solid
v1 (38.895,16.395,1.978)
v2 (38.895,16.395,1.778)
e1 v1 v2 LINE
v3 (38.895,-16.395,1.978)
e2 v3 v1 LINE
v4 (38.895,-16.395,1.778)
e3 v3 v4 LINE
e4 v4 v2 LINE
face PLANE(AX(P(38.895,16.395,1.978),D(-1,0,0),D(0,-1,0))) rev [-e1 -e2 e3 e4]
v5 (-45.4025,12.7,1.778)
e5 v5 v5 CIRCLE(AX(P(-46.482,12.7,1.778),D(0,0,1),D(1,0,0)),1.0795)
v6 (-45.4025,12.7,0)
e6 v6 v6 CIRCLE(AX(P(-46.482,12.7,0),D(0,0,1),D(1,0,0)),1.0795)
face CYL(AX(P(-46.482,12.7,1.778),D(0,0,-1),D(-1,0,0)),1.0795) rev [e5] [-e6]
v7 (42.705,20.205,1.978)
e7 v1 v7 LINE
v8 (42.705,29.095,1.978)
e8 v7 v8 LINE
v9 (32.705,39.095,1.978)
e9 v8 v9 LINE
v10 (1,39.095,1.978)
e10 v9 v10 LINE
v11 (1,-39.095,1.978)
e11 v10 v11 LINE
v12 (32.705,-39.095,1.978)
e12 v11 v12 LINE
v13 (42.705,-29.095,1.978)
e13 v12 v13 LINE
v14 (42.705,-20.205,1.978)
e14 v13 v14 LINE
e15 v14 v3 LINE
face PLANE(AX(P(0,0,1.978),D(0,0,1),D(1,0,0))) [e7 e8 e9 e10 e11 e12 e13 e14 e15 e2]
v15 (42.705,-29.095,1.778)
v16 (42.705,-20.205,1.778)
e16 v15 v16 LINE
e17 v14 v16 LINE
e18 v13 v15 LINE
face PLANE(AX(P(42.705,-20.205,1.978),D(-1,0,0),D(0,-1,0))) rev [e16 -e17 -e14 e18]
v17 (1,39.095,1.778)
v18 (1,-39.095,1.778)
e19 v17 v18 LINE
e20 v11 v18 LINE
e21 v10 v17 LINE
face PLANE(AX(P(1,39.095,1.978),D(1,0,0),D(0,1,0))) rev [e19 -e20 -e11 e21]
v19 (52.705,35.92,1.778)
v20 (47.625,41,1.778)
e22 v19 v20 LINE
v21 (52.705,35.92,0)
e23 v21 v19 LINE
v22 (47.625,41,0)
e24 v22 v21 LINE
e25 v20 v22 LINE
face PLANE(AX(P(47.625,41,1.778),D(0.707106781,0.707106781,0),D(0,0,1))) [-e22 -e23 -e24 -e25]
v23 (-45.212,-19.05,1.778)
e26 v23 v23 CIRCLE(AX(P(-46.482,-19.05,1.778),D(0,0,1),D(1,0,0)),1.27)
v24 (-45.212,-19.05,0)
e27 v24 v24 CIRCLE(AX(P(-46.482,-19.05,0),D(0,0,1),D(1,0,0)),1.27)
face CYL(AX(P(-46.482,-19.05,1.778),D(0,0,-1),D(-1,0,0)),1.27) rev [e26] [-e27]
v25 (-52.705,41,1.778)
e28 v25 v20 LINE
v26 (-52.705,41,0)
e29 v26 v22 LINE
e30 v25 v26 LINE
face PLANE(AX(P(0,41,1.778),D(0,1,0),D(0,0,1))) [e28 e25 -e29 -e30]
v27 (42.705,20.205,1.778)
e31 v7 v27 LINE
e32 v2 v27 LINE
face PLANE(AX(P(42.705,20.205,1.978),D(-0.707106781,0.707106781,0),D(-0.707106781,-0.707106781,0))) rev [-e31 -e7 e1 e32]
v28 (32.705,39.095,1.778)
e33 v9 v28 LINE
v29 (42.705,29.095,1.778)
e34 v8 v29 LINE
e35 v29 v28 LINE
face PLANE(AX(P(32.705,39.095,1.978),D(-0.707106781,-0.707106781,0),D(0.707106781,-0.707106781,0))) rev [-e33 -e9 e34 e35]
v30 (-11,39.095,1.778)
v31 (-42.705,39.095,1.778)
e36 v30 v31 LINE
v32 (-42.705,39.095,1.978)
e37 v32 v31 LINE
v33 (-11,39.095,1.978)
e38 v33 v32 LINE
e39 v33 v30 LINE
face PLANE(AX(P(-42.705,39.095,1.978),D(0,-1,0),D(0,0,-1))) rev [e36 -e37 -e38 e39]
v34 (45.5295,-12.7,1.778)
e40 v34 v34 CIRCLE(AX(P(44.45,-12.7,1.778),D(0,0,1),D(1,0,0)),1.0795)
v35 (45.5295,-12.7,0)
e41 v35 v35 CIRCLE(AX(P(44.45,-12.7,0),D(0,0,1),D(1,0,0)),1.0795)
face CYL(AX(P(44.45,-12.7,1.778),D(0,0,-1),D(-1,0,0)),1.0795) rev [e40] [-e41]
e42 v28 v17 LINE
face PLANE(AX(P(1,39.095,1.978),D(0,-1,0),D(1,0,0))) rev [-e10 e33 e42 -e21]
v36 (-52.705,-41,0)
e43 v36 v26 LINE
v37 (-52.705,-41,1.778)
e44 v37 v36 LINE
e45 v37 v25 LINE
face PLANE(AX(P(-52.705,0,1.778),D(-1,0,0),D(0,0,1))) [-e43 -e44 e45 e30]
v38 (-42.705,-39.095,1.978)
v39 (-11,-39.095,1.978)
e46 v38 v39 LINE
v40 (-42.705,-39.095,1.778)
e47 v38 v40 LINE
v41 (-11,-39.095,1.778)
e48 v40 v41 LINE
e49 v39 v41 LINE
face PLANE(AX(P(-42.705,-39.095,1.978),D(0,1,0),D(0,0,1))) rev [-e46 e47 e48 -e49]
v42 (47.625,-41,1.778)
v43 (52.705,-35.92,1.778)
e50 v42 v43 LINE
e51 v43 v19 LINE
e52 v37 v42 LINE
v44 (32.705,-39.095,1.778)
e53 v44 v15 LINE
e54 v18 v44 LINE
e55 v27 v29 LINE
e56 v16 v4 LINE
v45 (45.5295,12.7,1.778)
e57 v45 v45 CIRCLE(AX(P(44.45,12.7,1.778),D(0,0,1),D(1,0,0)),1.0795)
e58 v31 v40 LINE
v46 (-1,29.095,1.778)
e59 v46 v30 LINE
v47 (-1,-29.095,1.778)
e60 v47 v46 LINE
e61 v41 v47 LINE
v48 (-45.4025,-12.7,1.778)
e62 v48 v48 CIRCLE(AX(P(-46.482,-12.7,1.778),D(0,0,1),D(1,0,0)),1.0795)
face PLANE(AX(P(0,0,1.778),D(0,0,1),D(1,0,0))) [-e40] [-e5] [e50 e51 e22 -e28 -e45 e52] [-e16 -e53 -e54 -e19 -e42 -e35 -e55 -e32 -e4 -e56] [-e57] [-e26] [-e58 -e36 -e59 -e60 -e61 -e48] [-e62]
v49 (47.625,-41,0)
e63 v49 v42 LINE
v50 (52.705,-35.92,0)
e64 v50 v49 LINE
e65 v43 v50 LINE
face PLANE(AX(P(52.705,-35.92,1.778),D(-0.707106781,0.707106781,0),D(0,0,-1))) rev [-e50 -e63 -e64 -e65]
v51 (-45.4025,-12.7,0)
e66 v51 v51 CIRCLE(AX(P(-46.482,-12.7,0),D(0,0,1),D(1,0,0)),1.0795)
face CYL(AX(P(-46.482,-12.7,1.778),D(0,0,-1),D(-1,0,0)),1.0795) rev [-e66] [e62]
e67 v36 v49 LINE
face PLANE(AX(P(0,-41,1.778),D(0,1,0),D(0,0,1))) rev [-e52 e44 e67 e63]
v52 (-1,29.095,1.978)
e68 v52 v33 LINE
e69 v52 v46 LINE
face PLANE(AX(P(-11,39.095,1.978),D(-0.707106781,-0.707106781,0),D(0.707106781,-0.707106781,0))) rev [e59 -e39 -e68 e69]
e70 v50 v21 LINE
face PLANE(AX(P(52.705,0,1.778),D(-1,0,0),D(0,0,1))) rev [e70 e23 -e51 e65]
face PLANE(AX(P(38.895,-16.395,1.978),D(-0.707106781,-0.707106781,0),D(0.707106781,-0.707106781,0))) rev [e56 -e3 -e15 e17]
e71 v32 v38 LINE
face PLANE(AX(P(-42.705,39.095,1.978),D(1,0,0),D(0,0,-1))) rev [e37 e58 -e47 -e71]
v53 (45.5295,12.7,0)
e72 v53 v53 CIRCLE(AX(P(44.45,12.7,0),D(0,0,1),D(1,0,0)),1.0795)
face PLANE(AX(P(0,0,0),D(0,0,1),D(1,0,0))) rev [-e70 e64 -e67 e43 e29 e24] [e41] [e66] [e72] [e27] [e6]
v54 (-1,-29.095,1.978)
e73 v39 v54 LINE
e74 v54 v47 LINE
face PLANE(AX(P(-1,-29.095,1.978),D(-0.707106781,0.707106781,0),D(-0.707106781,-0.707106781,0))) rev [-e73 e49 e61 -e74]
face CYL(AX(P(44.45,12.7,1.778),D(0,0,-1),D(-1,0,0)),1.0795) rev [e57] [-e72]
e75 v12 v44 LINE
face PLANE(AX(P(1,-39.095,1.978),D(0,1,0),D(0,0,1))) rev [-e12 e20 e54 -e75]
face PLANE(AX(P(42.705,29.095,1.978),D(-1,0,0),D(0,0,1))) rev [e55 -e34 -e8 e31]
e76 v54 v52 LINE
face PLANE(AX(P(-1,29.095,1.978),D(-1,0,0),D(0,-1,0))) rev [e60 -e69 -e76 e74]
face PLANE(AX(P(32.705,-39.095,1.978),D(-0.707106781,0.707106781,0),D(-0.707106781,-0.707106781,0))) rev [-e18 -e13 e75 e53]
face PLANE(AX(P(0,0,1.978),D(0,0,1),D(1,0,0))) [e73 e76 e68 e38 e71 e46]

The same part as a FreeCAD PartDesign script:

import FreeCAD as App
import Part
import Sketcher
from FreeCAD import Vector
Q = App.Units.Quantity


def edges_at(feature, points):
    """Names of the edges that pass closest to the given points."""
    edges = feature.Shape.Edges
    near = lambda p: min(range(len(edges)), key=lambda i: edges[i].distToShape(Part.Vertex(*p))[0])
    return sorted({f"Edge{near(p) + 1}" for p in points})

doc = App.newDocument("Part")
body = doc.addObject("PartDesign::Body", "Body")

sketch1 = body.newObject("Sketcher::SketchObject", "Sketch")
sketch1.AttachmentSupport = (doc.getObject("XY_Plane"), [""])
sketch1.MapMode = "FlatFace"
sketch1.addGeometry(Part.LineSegment(Vector(-52.7, 41, 0), Vector(-52.7, -41, 0)), False)
sketch1.addGeometry(Part.LineSegment(Vector(-52.7, -41, 0), Vector(52.7, -41, 0)), False)
sketch1.addGeometry(Part.LineSegment(Vector(52.7, -41, 0), Vector(52.7, 41, 0)), False)
sketch1.addGeometry(Part.LineSegment(Vector(52.7, 41, 0), Vector(-52.7, 41, 0)), False)
sketch1.addGeometry(Part.Circle(Vector(-46.5, -19.1, 0), Vector(0, 0, 1), 1.3), False)
sketch1.addGeometry(Part.Circle(Vector(-46.5, -12.7, 0), Vector(0, 0, 1), 1.1), False)
sketch1.addGeometry(Part.Circle(Vector(44.5, -12.7, 0), Vector(0, 0, 1), 1.1), False)
sketch1.addGeometry(Part.Circle(Vector(-46.5, 12.7, 0), Vector(0, 0, 1), 1.1), False)
sketch1.addGeometry(Part.Circle(Vector(44.5, 12.7, 0), Vector(0, 0, 1), 1.1), False)
sketch1.addConstraint(Sketcher.Constraint("Coincident", 0, 2, 1, 1))
sketch1.addConstraint(Sketcher.Constraint("Coincident", 1, 2, 2, 1))
sketch1.addConstraint(Sketcher.Constraint("Coincident", 2, 2, 3, 1))
sketch1.addConstraint(Sketcher.Constraint("Coincident", 3, 2, 0, 1))
sketch1.addConstraint(Sketcher.Constraint("Vertical", 0))
sketch1.addConstraint(Sketcher.Constraint("Horizontal", 1))
sketch1.addConstraint(Sketcher.Constraint("Vertical", 2))
sketch1.addConstraint(Sketcher.Constraint("Horizontal", 3))
sketch1.addConstraint(Sketcher.Constraint("Equal", 5, 6))
sketch1.addConstraint(Sketcher.Constraint("Equal", 6, 7))
sketch1.addConstraint(Sketcher.Constraint("Equal", 7, 8))
sketch1.addConstraint(Sketcher.Constraint("Symmetric", 0, 2, 2, 2, -1, 1))
sketch1.addConstraint(Sketcher.Constraint("Symmetric", 5, 3, 7, 3, -1))
sketch1.addConstraint(Sketcher.Constraint("Symmetric", 6, 3, 8, 3, -1))
sketch1.addConstraint(Sketcher.Constraint("Horizontal", 5, 3, 6, 3))
sketch1.addConstraint(Sketcher.Constraint("Vertical", 4, 3, 5, 3))
sketch1.addConstraint(Sketcher.Constraint("Diameter", 4, Q("0.1 in")))
sketch1.addConstraint(Sketcher.Constraint("Diameter", 5, Q("0.085 in")))
sketch1.addConstraint(Sketcher.Constraint("DistanceY", 5, 3, 7, 3, Q("1 in")))
sketch1.addConstraint(Sketcher.Constraint("DistanceX", 1, 1, 1, 2, Q("4.15 in")))
sketch1.addConstraint(Sketcher.Constraint("DistanceX", 4, 3, -1, 1, Q("1.83 in")))
sketch1.addConstraint(Sketcher.Constraint("DistanceY", 4, 3, -1, 1, Q("0.75 in")))
sketch1.addConstraint(Sketcher.Constraint("DistanceX", -1, 1, 6, 3, Q("1.75 in")))
sketch1.addConstraint(Sketcher.Constraint("DistanceY", 0, 2, 0, 1, 82.0))
pad1 = body.newObject("PartDesign::Pad", "Pad")
pad1.Profile = sketch1
pad1.Length = Q("0.07 in")

sketch2 = body.newObject("Sketcher::SketchObject", "Sketch001")
sketch2.AttachmentSupport = (doc.getObject("XY_Plane"), [""])
sketch2.MapMode = "FlatFace"
sketch2.AttachmentOffset = App.Placement(Vector(0, 0, 0.07 * 25.4), App.Rotation())
sketch2.addGeometry(Part.LineSegment(Vector(-1, 29, 0), Vector(-11, 39, 0)), False)
sketch2.addGeometry(Part.LineSegment(Vector(-11, 39, 0), Vector(-43, 39, 0)), False)
sketch2.addGeometry(Part.LineSegment(Vector(-43, 39, 0), Vector(-43, -39, 0)), False)
sketch2.addGeometry(Part.LineSegment(Vector(-43, -39, 0), Vector(-11, -39, 0)), False)
sketch2.addGeometry(Part.LineSegment(Vector(-11, -39, 0), Vector(-1, -29, 0)), False)
sketch2.addGeometry(Part.LineSegment(Vector(-1, -29, 0), Vector(-1, 29, 0)), False)
sketch2.addGeometry(Part.LineSegment(Vector(39, 16, 0), Vector(43, 20, 0)), False)
sketch2.addGeometry(Part.LineSegment(Vector(43, 20, 0), Vector(43, 29, 0)), False)
sketch2.addGeometry(Part.LineSegment(Vector(43, 29, 0), Vector(33, 39, 0)), False)
sketch2.addGeometry(Part.LineSegment(Vector(33, 39, 0), Vector(1, 39, 0)), False)
sketch2.addGeometry(Part.LineSegment(Vector(1, 39, 0), Vector(1, -39, 0)), False)
sketch2.addGeometry(Part.LineSegment(Vector(1, -39, 0), Vector(33, -39, 0)), False)
sketch2.addGeometry(Part.LineSegment(Vector(33, -39, 0), Vector(43, -29, 0)), False)
sketch2.addGeometry(Part.LineSegment(Vector(43, -29, 0), Vector(43, -20, 0)), False)
sketch2.addGeometry(Part.LineSegment(Vector(43, -20, 0), Vector(39, -16, 0)), False)
sketch2.addGeometry(Part.LineSegment(Vector(39, -16, 0), Vector(39, 16, 0)), False)
sketch2.addConstraint(Sketcher.Constraint("Coincident", 0, 2, 1, 1))
sketch2.addConstraint(Sketcher.Constraint("Coincident", 1, 2, 2, 1))
sketch2.addConstraint(Sketcher.Constraint("Coincident", 2, 2, 3, 1))
sketch2.addConstraint(Sketcher.Constraint("Coincident", 3, 2, 4, 1))
sketch2.addConstraint(Sketcher.Constraint("Coincident", 4, 2, 5, 1))
sketch2.addConstraint(Sketcher.Constraint("Coincident", 5, 2, 0, 1))
sketch2.addConstraint(Sketcher.Constraint("Coincident", 6, 2, 7, 1))
sketch2.addConstraint(Sketcher.Constraint("Coincident", 7, 2, 8, 1))
sketch2.addConstraint(Sketcher.Constraint("Coincident", 8, 2, 9, 1))
sketch2.addConstraint(Sketcher.Constraint("Coincident", 9, 2, 10, 1))
sketch2.addConstraint(Sketcher.Constraint("Coincident", 10, 2, 11, 1))
sketch2.addConstraint(Sketcher.Constraint("Coincident", 11, 2, 12, 1))
sketch2.addConstraint(Sketcher.Constraint("Coincident", 12, 2, 13, 1))
sketch2.addConstraint(Sketcher.Constraint("Coincident", 13, 2, 14, 1))
sketch2.addConstraint(Sketcher.Constraint("Coincident", 14, 2, 15, 1))
sketch2.addConstraint(Sketcher.Constraint("Coincident", 15, 2, 6, 1))
sketch2.addConstraint(Sketcher.Constraint("Horizontal", 1))
sketch2.addConstraint(Sketcher.Constraint("Vertical", 2))
sketch2.addConstraint(Sketcher.Constraint("Horizontal", 3))
sketch2.addConstraint(Sketcher.Constraint("Vertical", 5))
sketch2.addConstraint(Sketcher.Constraint("Vertical", 7))
sketch2.addConstraint(Sketcher.Constraint("Horizontal", 9))
sketch2.addConstraint(Sketcher.Constraint("Vertical", 10))
sketch2.addConstraint(Sketcher.Constraint("Horizontal", 11))
sketch2.addConstraint(Sketcher.Constraint("Vertical", 13))
sketch2.addConstraint(Sketcher.Constraint("Vertical", 15))
sketch2.addConstraint(Sketcher.Constraint("Symmetric", 0, 2, 3, 2, -1))
sketch2.addConstraint(Sketcher.Constraint("Symmetric", 8, 2, 11, 2, -1))
sketch2.addConstraint(Sketcher.Constraint("Symmetric", 7, 2, 12, 2, -1))
sketch2.addConstraint(Sketcher.Constraint("Perpendicular", 0, 4))
sketch2.addConstraint(Sketcher.Constraint("Parallel", 4, 6))
sketch2.addConstraint(Sketcher.Constraint("Perpendicular", 6, 8))
sketch2.addConstraint(Sketcher.Constraint("Perpendicular", 8, 12))
sketch2.addConstraint(Sketcher.Constraint("Perpendicular", 12, 14))
sketch2.addConstraint(Sketcher.Constraint("Horizontal", 5, 2, 7, 2))
sketch2.addConstraint(Sketcher.Constraint("Horizontal", 1, 2, 8, 2))
sketch2.addConstraint(Sketcher.Constraint("Equal", 3, 9))
sketch2.addConstraint(Sketcher.Constraint("Equal", 7, 13))
sketch2.addConstraint(Sketcher.Constraint("DistanceY", 7, 1, 7, 2, Q("0.35 in")))
sketch2.addConstraint(Sketcher.Constraint("DistanceY", 12, 2, 14, 2, Q("0.5 in")))
sketch2.addConstraint(Sketcher.Constraint("DistanceX", 1, 2, 1, 1, 31.705))
sketch2.addConstraint(Sketcher.Constraint("DistanceY", 2, 2, 2, 1, 78.19))
sketch2.addConstraint(Sketcher.Constraint("DistanceY", 5, 1, 5, 2, 58.19))
sketch2.addConstraint(Sketcher.Constraint("DistanceX", 0, 2, -1, 1, 11.0))
sketch2.addConstraint(Sketcher.Constraint("DistanceX", -1, 1, 6, 2, 42.705))
pad2 = body.newObject("PartDesign::Pad", "Pad001")
pad2.Profile = sketch2
pad2.Length = 0.2
doc.recompute()

chamfer = body.newObject("PartDesign::Chamfer", "Chamfer")
chamfer.Base = (pad2, edges_at(pad2, [(52.705, 41, 0.889), (52.705, -41, 0.889)]))
chamfer.Size = Q("0.2 in")

doc.recompute()
